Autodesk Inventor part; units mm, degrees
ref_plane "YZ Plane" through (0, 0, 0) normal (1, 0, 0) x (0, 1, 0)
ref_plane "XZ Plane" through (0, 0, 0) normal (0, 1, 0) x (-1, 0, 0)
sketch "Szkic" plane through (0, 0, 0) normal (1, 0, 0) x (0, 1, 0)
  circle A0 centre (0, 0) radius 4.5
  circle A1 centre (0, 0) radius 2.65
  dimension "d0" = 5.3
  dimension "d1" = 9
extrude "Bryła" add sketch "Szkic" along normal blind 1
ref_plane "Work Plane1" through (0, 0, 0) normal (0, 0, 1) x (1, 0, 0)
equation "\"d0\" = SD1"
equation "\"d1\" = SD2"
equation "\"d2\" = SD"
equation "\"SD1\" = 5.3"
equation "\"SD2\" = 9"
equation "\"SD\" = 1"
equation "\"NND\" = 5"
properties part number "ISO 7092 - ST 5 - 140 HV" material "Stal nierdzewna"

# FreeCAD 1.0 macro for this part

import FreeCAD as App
import Part
import Sketcher

V = App.Vector

doc = App.newDocument("Part")
body = doc.addObject("PartDesign::Body", "Body")

# Sketch on YZ plane
sketch1 = body.newObject("Sketcher::SketchObject", "Sketch")
sketch1.AttachmentSupport = (doc.getObject("YZ_Plane"), [""])
sketch1.MapMode = "FlatFace"
sketch1.addGeometry([
    Part.Circle(V(0, 0, 0), V(0, 0, 1), 4.5),
    Part.Circle(V(0, 0, 0), V(0, 0, 1), 2.65),
], False)
sketch1.addConstraint([
    Sketcher.Constraint("Coincident", 0, 3, -1, 1),
    Sketcher.Constraint("Coincident", 1, 3, -1, 1),
    Sketcher.Constraint("Diameter", 0, 9.0),
    Sketcher.Constraint("Diameter", 1, 5.3),
])
pad1 = body.newObject("PartDesign::Pad", "Pad")
pad1.Profile = sketch1
pad1.Length = 1

doc.recompute()
